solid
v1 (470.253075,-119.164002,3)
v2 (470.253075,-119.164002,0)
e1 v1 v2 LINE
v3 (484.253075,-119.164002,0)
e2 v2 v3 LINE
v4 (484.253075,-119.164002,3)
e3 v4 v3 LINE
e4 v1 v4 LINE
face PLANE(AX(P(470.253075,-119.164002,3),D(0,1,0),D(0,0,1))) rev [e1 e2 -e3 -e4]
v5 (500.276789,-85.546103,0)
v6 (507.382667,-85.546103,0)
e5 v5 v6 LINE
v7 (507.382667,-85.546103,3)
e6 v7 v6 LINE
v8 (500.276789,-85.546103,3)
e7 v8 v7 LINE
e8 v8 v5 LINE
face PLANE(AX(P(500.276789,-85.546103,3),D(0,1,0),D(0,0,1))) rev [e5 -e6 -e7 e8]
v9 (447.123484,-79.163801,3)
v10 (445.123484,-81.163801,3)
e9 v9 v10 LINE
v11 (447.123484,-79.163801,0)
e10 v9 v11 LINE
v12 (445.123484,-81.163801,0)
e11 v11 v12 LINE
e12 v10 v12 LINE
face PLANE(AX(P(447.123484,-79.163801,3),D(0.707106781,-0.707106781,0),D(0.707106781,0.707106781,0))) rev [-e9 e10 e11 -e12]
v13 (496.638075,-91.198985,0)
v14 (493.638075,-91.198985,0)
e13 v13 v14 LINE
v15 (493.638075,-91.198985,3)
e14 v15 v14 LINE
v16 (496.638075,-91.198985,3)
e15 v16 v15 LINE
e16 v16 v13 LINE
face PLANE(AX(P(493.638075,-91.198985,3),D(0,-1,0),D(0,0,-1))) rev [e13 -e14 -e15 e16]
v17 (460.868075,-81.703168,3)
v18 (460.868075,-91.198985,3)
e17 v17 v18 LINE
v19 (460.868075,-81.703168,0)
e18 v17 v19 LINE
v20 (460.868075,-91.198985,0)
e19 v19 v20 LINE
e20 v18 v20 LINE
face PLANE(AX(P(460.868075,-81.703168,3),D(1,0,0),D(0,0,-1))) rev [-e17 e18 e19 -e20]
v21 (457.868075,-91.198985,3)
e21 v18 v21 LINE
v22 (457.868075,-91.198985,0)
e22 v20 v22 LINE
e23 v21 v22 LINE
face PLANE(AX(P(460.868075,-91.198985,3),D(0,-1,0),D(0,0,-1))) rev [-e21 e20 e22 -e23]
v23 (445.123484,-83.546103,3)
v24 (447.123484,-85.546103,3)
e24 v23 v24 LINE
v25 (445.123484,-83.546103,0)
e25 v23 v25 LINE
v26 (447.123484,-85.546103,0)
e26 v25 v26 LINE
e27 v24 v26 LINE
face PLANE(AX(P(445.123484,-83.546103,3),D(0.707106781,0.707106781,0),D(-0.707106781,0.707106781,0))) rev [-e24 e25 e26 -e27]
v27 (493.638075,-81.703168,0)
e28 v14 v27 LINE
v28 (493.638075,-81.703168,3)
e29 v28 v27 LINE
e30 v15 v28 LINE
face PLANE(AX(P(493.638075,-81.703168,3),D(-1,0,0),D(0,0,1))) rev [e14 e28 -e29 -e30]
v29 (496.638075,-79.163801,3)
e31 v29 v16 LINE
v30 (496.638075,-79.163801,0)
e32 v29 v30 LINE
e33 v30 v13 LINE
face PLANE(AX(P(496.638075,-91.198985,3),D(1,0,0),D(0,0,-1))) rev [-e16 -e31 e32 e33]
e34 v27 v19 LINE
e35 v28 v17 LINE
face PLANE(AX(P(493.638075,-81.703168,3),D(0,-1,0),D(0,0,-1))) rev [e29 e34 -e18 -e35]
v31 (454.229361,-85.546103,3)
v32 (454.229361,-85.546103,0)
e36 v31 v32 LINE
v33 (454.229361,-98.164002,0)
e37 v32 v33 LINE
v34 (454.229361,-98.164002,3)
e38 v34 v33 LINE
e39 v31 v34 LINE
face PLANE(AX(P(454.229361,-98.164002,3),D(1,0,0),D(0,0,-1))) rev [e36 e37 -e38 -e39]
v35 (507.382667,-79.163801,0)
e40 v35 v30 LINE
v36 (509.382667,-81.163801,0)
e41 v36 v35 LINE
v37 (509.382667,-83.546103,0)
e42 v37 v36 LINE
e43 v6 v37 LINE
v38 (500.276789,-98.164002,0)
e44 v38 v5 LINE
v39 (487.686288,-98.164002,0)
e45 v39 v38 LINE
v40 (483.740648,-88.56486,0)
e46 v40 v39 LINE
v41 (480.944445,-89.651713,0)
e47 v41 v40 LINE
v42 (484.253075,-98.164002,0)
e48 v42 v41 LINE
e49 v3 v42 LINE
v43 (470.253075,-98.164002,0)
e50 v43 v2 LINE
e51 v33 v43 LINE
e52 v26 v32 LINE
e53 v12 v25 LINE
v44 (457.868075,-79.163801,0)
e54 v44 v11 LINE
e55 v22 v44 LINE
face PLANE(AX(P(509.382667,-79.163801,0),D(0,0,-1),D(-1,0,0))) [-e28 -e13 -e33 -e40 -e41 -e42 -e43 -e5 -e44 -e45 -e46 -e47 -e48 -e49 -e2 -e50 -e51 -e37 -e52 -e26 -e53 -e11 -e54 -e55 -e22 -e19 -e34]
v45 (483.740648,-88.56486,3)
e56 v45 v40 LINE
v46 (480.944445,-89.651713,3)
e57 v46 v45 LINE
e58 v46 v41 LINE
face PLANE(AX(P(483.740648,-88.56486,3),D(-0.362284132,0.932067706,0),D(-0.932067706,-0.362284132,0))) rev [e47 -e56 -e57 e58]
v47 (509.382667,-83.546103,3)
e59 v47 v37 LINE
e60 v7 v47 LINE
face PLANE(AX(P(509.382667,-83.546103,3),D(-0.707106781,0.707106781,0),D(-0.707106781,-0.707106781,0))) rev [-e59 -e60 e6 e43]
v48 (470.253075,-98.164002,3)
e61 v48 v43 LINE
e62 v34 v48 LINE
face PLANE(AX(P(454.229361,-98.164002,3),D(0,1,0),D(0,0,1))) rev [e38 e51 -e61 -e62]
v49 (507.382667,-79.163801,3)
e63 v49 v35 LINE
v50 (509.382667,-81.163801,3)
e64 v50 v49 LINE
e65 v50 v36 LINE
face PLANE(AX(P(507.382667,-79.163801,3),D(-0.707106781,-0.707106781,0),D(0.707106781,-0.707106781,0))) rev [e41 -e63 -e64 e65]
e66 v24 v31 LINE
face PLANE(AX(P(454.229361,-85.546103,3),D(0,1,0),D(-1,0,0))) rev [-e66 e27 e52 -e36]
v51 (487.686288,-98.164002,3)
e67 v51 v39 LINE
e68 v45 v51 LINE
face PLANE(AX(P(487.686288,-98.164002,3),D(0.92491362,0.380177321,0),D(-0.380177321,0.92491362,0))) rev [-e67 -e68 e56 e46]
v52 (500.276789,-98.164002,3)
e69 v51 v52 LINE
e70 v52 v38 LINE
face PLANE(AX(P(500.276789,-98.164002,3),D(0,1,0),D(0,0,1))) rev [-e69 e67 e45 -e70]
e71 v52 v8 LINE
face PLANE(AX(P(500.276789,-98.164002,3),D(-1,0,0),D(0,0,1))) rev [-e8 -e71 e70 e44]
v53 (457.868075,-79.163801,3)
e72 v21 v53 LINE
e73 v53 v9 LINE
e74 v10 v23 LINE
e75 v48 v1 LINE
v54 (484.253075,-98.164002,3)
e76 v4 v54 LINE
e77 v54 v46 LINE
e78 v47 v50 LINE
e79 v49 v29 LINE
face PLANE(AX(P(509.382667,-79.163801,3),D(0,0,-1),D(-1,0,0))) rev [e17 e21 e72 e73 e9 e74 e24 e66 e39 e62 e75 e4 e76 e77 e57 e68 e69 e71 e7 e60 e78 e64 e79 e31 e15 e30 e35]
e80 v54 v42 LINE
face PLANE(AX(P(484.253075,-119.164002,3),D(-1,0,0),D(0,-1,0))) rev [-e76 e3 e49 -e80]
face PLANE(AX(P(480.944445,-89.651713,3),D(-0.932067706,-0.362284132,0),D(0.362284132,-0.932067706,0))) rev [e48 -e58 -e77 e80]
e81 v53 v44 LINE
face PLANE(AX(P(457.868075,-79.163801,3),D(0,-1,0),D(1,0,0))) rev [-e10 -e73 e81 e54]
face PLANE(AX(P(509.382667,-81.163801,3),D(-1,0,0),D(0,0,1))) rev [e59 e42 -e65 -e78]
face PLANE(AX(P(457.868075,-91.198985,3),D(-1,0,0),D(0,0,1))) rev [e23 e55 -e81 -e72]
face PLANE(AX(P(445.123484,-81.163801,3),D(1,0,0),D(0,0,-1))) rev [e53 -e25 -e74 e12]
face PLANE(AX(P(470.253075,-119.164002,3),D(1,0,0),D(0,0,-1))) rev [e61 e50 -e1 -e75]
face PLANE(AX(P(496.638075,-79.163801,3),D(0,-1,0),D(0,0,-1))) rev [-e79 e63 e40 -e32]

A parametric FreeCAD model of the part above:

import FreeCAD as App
import Part
import Sketcher
from FreeCAD import Vector

doc = App.newDocument("Part")
body = doc.addObject("PartDesign::Body", "Body")

# Sketch on XY plane
sketch1 = body.newObject("Sketcher::SketchObject", "Sketch")
sketch1.AttachmentSupport = (doc.getObject("XY_Plane"), [""])
sketch1.MapMode = "FlatFace"
sketch1.addGeometry([
    Part.LineSegment(Vector(509.382667, -81.163801, 0), Vector(507.382667, -79.163801, 0)),  # 0
    Part.LineSegment(Vector(507.382667, -79.163801, 0), Vector(496.638075, -79.163801, 0)),  # 1
    Part.LineSegment(Vector(496.638075, -79.163801, 0), Vector(496.638075, -91.198985, 0)),  # 2
    Part.LineSegment(Vector(496.638075, -91.198985, 0), Vector(493.638075, -91.198985, 0)),  # 3
    Part.LineSegment(Vector(493.638075, -91.198985, 0), Vector(493.638075, -81.703168, 0)),  # 4
    Part.LineSegment(Vector(493.638075, -81.703168, 0), Vector(460.868075, -81.703168, 0)),  # 5
    Part.LineSegment(Vector(460.868075, -81.703168, 0), Vector(460.868075, -91.198985, 0)),  # 6
    Part.LineSegment(Vector(460.868075, -91.198985, 0), Vector(457.868075, -91.198985, 0)),  # 7
    Part.LineSegment(Vector(457.868075, -91.198985, 0), Vector(457.868075, -79.163801, 0)),  # 8
    Part.LineSegment(Vector(457.868075, -79.163801, 0), Vector(447.123484, -79.163801, 0)),  # 9
    Part.LineSegment(Vector(447.123484, -79.163801, 0), Vector(445.123484, -81.163801, 0)),  # 10
    Part.LineSegment(Vector(445.123484, -81.163801, 0), Vector(445.123484, -83.546103, 0)),  # 11
    Part.LineSegment(Vector(445.123484, -83.546103, 0), Vector(447.123484, -85.546103, 0)),  # 12
    Part.LineSegment(Vector(447.123484, -85.546103, 0), Vector(454.229361, -85.546103, 0)),  # 13
    Part.LineSegment(Vector(454.229361, -85.546103, 0), Vector(454.229361, -98.164002, 0)),  # 14
    Part.LineSegment(Vector(454.229361, -98.164002, 0), Vector(470.253075, -98.164002, 0)),  # 15
    Part.LineSegment(Vector(470.253075, -98.164002, 0), Vector(470.253075, -119.164002, 0)),  # 16
    Part.LineSegment(Vector(470.253075, -119.164002, 0), Vector(484.253075, -119.164002, 0)),  # 17
    Part.LineSegment(Vector(484.253075, -119.164002, 0), Vector(484.253075, -98.164002, 0)),  # 18
    Part.LineSegment(Vector(484.253075, -98.164002, 0), Vector(480.944445, -89.651713, 0)),  # 19
    Part.LineSegment(Vector(480.944445, -89.651713, 0), Vector(483.740648, -88.56486, 0)),  # 20
    Part.LineSegment(Vector(483.740648, -88.56486, 0), Vector(487.686288, -98.164002, 0)),  # 21
    Part.LineSegment(Vector(487.686288, -98.164002, 0), Vector(500.276789, -98.164002, 0)),  # 22
    Part.LineSegment(Vector(500.276789, -98.164002, 0), Vector(500.276789, -85.546103, 0)),  # 23
    Part.LineSegment(Vector(500.276789, -85.546103, 0), Vector(507.382667, -85.546103, 0)),  # 24
    Part.LineSegment(Vector(507.382667, -85.546103, 0), Vector(509.382667, -83.546103, 0)),  # 25
    Part.LineSegment(Vector(509.382667, -83.546103, 0), Vector(509.382667, -81.163801, 0)),  # 26
], False)
sketch1.addConstraint([
    Sketcher.Constraint("Coincident", 0, 2, 1, 1),
    Sketcher.Constraint("Coincident", 1, 2, 2, 1),
    Sketcher.Constraint("Coincident", 2, 2, 3, 1),
    Sketcher.Constraint("Coincident", 3, 2, 4, 1),
    Sketcher.Constraint("Coincident", 4, 2, 5, 1),
    Sketcher.Constraint("Coincident", 5, 2, 6, 1),
    Sketcher.Constraint("Coincident", 6, 2, 7, 1),
    Sketcher.Constraint("Coincident", 7, 2, 8, 1),
    Sketcher.Constraint("Coincident", 8, 2, 9, 1),
    Sketcher.Constraint("Coincident", 9, 2, 10, 1),
    Sketcher.Constraint("Coincident", 10, 2, 11, 1),
    Sketcher.Constraint("Coincident", 11, 2, 12, 1),
    Sketcher.Constraint("Coincident", 12, 2, 13, 1),
    Sketcher.Constraint("Coincident", 13, 2, 14, 1),
    Sketcher.Constraint("Coincident", 14, 2, 15, 1),
    Sketcher.Constraint("Coincident", 15, 2, 16, 1),
    Sketcher.Constraint("Coincident", 16, 2, 17, 1),
    Sketcher.Constraint("Coincident", 17, 2, 18, 1),
    Sketcher.Constraint("Coincident", 18, 2, 19, 1),
    Sketcher.Constraint("Coincident", 19, 2, 20, 1),
    Sketcher.Constraint("Coincident", 20, 2, 21, 1),
    Sketcher.Constraint("Coincident", 21, 2, 22, 1),
    Sketcher.Constraint("Coincident", 22, 2, 23, 1),
    Sketcher.Constraint("Coincident", 23, 2, 24, 1),
    Sketcher.Constraint("Coincident", 24, 2, 25, 1),
    Sketcher.Constraint("Coincident", 25, 2, 26, 1),
    Sketcher.Constraint("Coincident", 26, 2, 0, 1),
    Sketcher.Constraint("Horizontal", 1),
    Sketcher.Constraint("Vertical", 2),
    Sketcher.Constraint("Horizontal", 3),
    Sketcher.Constraint("Vertical", 4),
    Sketcher.Constraint("Horizontal", 5),
    Sketcher.Constraint("Vertical", 6),
    Sketcher.Constraint("Horizontal", 7),
    Sketcher.Constraint("Vertical", 8),
    Sketcher.Constraint("Horizontal", 9),
    Sketcher.Constraint("Vertical", 11),
    Sketcher.Constraint("Horizontal", 13),
    Sketcher.Constraint("Vertical", 14),
    Sketcher.Constraint("Horizontal", 15),
    Sketcher.Constraint("Vertical", 16),
    Sketcher.Constraint("Horizontal", 17),
    Sketcher.Constraint("Vertical", 18),
    Sketcher.Constraint("Horizontal", 22),
    Sketcher.Constraint("Vertical", 23),
    Sketcher.Constraint("Horizontal", 24),
    Sketcher.Constraint("Vertical", 26),
    Sketcher.Constraint("Perpendicular", 0, 10),
    Sketcher.Constraint("Perpendicular", 10, 12),
    Sketcher.Constraint("Perpendicular", 19, 20),
    Sketcher.Constraint("Perpendicular", 12, 25),
    Sketcher.Constraint("Horizontal", 3, 2, 6, 2),
    Sketcher.Constraint("Horizontal", 1, 2, 8, 2),
    Sketcher.Constraint("Horizontal", 15, 2, 18, 2),
    Sketcher.Constraint("Horizontal", 18, 2, 21, 2),
    Sketcher.Constraint("Horizontal", 13, 2, 23, 2),
    Sketcher.Constraint("Horizontal", 11, 2, 25, 2),
    Sketcher.Constraint("Horizontal", 10, 2, 26, 2),
    Sketcher.Constraint("Vertical", 9, 2, 12, 2),
    Sketcher.Constraint("Vertical", 0, 2, 24, 2),
    Sketcher.Constraint("Equal", 3, 7),
    Sketcher.Constraint("Equal", 1, 9),
    Sketcher.Constraint("Equal", 13, 24),
    Sketcher.Constraint("DistanceX", 3, 2, 3, 1, 3.0),
    Sketcher.Constraint("DistanceX", 17, 1, 17, 2, 14.0),
    Sketcher.Constraint("DistanceY", 16, 2, 16, 1, 21.0),
    Sketcher.Constraint("Distance", 20, 3.0),
    Sketcher.Constraint("DistanceX", 10, 2, 9, 2, 2.0),
    Sketcher.Constraint("DistanceX", 5, 2, 5, 1, 32.77),
    Sketcher.Constraint("DistanceX", 22, 1, 22, 2, 12.590502),
    Sketcher.Constraint("DistanceY", 11, 2, 11, 1, 2.382302),
    Sketcher.Constraint("DistanceY", 14, 2, 14, 1, 12.617899),
    Sketcher.Constraint("DistanceY", 14, 2, -1, 1, 98.164002),
    Sketcher.Constraint("DistanceX", 6, 2, 15, 2, 9.385),
    Sketcher.Constraint("DistanceX", 1, 2, 1, 1, 10.744592),
    Sketcher.Constraint("Distance", 21, 10.378419),
    Sketcher.Constraint("DistanceX", 13, 1, 13, 2, 7.105877),
    Sketcher.Constraint("DistanceY", 2, 2, 2, 1, 12.035184),
    Sketcher.Constraint("DistanceY", 4, 1, 4, 2, 9.495818),
    Sketcher.Constraint("DistanceX", -1, 1, 13, 2, 454.229361),
    Sketcher.Constraint("DistanceX", -1, 1, 20, 2, 483.740648),
])
pad1 = body.newObject("PartDesign::Pad", "Pad")
pad1.Profile = sketch1
pad1.Length = 3

doc.recompute()
